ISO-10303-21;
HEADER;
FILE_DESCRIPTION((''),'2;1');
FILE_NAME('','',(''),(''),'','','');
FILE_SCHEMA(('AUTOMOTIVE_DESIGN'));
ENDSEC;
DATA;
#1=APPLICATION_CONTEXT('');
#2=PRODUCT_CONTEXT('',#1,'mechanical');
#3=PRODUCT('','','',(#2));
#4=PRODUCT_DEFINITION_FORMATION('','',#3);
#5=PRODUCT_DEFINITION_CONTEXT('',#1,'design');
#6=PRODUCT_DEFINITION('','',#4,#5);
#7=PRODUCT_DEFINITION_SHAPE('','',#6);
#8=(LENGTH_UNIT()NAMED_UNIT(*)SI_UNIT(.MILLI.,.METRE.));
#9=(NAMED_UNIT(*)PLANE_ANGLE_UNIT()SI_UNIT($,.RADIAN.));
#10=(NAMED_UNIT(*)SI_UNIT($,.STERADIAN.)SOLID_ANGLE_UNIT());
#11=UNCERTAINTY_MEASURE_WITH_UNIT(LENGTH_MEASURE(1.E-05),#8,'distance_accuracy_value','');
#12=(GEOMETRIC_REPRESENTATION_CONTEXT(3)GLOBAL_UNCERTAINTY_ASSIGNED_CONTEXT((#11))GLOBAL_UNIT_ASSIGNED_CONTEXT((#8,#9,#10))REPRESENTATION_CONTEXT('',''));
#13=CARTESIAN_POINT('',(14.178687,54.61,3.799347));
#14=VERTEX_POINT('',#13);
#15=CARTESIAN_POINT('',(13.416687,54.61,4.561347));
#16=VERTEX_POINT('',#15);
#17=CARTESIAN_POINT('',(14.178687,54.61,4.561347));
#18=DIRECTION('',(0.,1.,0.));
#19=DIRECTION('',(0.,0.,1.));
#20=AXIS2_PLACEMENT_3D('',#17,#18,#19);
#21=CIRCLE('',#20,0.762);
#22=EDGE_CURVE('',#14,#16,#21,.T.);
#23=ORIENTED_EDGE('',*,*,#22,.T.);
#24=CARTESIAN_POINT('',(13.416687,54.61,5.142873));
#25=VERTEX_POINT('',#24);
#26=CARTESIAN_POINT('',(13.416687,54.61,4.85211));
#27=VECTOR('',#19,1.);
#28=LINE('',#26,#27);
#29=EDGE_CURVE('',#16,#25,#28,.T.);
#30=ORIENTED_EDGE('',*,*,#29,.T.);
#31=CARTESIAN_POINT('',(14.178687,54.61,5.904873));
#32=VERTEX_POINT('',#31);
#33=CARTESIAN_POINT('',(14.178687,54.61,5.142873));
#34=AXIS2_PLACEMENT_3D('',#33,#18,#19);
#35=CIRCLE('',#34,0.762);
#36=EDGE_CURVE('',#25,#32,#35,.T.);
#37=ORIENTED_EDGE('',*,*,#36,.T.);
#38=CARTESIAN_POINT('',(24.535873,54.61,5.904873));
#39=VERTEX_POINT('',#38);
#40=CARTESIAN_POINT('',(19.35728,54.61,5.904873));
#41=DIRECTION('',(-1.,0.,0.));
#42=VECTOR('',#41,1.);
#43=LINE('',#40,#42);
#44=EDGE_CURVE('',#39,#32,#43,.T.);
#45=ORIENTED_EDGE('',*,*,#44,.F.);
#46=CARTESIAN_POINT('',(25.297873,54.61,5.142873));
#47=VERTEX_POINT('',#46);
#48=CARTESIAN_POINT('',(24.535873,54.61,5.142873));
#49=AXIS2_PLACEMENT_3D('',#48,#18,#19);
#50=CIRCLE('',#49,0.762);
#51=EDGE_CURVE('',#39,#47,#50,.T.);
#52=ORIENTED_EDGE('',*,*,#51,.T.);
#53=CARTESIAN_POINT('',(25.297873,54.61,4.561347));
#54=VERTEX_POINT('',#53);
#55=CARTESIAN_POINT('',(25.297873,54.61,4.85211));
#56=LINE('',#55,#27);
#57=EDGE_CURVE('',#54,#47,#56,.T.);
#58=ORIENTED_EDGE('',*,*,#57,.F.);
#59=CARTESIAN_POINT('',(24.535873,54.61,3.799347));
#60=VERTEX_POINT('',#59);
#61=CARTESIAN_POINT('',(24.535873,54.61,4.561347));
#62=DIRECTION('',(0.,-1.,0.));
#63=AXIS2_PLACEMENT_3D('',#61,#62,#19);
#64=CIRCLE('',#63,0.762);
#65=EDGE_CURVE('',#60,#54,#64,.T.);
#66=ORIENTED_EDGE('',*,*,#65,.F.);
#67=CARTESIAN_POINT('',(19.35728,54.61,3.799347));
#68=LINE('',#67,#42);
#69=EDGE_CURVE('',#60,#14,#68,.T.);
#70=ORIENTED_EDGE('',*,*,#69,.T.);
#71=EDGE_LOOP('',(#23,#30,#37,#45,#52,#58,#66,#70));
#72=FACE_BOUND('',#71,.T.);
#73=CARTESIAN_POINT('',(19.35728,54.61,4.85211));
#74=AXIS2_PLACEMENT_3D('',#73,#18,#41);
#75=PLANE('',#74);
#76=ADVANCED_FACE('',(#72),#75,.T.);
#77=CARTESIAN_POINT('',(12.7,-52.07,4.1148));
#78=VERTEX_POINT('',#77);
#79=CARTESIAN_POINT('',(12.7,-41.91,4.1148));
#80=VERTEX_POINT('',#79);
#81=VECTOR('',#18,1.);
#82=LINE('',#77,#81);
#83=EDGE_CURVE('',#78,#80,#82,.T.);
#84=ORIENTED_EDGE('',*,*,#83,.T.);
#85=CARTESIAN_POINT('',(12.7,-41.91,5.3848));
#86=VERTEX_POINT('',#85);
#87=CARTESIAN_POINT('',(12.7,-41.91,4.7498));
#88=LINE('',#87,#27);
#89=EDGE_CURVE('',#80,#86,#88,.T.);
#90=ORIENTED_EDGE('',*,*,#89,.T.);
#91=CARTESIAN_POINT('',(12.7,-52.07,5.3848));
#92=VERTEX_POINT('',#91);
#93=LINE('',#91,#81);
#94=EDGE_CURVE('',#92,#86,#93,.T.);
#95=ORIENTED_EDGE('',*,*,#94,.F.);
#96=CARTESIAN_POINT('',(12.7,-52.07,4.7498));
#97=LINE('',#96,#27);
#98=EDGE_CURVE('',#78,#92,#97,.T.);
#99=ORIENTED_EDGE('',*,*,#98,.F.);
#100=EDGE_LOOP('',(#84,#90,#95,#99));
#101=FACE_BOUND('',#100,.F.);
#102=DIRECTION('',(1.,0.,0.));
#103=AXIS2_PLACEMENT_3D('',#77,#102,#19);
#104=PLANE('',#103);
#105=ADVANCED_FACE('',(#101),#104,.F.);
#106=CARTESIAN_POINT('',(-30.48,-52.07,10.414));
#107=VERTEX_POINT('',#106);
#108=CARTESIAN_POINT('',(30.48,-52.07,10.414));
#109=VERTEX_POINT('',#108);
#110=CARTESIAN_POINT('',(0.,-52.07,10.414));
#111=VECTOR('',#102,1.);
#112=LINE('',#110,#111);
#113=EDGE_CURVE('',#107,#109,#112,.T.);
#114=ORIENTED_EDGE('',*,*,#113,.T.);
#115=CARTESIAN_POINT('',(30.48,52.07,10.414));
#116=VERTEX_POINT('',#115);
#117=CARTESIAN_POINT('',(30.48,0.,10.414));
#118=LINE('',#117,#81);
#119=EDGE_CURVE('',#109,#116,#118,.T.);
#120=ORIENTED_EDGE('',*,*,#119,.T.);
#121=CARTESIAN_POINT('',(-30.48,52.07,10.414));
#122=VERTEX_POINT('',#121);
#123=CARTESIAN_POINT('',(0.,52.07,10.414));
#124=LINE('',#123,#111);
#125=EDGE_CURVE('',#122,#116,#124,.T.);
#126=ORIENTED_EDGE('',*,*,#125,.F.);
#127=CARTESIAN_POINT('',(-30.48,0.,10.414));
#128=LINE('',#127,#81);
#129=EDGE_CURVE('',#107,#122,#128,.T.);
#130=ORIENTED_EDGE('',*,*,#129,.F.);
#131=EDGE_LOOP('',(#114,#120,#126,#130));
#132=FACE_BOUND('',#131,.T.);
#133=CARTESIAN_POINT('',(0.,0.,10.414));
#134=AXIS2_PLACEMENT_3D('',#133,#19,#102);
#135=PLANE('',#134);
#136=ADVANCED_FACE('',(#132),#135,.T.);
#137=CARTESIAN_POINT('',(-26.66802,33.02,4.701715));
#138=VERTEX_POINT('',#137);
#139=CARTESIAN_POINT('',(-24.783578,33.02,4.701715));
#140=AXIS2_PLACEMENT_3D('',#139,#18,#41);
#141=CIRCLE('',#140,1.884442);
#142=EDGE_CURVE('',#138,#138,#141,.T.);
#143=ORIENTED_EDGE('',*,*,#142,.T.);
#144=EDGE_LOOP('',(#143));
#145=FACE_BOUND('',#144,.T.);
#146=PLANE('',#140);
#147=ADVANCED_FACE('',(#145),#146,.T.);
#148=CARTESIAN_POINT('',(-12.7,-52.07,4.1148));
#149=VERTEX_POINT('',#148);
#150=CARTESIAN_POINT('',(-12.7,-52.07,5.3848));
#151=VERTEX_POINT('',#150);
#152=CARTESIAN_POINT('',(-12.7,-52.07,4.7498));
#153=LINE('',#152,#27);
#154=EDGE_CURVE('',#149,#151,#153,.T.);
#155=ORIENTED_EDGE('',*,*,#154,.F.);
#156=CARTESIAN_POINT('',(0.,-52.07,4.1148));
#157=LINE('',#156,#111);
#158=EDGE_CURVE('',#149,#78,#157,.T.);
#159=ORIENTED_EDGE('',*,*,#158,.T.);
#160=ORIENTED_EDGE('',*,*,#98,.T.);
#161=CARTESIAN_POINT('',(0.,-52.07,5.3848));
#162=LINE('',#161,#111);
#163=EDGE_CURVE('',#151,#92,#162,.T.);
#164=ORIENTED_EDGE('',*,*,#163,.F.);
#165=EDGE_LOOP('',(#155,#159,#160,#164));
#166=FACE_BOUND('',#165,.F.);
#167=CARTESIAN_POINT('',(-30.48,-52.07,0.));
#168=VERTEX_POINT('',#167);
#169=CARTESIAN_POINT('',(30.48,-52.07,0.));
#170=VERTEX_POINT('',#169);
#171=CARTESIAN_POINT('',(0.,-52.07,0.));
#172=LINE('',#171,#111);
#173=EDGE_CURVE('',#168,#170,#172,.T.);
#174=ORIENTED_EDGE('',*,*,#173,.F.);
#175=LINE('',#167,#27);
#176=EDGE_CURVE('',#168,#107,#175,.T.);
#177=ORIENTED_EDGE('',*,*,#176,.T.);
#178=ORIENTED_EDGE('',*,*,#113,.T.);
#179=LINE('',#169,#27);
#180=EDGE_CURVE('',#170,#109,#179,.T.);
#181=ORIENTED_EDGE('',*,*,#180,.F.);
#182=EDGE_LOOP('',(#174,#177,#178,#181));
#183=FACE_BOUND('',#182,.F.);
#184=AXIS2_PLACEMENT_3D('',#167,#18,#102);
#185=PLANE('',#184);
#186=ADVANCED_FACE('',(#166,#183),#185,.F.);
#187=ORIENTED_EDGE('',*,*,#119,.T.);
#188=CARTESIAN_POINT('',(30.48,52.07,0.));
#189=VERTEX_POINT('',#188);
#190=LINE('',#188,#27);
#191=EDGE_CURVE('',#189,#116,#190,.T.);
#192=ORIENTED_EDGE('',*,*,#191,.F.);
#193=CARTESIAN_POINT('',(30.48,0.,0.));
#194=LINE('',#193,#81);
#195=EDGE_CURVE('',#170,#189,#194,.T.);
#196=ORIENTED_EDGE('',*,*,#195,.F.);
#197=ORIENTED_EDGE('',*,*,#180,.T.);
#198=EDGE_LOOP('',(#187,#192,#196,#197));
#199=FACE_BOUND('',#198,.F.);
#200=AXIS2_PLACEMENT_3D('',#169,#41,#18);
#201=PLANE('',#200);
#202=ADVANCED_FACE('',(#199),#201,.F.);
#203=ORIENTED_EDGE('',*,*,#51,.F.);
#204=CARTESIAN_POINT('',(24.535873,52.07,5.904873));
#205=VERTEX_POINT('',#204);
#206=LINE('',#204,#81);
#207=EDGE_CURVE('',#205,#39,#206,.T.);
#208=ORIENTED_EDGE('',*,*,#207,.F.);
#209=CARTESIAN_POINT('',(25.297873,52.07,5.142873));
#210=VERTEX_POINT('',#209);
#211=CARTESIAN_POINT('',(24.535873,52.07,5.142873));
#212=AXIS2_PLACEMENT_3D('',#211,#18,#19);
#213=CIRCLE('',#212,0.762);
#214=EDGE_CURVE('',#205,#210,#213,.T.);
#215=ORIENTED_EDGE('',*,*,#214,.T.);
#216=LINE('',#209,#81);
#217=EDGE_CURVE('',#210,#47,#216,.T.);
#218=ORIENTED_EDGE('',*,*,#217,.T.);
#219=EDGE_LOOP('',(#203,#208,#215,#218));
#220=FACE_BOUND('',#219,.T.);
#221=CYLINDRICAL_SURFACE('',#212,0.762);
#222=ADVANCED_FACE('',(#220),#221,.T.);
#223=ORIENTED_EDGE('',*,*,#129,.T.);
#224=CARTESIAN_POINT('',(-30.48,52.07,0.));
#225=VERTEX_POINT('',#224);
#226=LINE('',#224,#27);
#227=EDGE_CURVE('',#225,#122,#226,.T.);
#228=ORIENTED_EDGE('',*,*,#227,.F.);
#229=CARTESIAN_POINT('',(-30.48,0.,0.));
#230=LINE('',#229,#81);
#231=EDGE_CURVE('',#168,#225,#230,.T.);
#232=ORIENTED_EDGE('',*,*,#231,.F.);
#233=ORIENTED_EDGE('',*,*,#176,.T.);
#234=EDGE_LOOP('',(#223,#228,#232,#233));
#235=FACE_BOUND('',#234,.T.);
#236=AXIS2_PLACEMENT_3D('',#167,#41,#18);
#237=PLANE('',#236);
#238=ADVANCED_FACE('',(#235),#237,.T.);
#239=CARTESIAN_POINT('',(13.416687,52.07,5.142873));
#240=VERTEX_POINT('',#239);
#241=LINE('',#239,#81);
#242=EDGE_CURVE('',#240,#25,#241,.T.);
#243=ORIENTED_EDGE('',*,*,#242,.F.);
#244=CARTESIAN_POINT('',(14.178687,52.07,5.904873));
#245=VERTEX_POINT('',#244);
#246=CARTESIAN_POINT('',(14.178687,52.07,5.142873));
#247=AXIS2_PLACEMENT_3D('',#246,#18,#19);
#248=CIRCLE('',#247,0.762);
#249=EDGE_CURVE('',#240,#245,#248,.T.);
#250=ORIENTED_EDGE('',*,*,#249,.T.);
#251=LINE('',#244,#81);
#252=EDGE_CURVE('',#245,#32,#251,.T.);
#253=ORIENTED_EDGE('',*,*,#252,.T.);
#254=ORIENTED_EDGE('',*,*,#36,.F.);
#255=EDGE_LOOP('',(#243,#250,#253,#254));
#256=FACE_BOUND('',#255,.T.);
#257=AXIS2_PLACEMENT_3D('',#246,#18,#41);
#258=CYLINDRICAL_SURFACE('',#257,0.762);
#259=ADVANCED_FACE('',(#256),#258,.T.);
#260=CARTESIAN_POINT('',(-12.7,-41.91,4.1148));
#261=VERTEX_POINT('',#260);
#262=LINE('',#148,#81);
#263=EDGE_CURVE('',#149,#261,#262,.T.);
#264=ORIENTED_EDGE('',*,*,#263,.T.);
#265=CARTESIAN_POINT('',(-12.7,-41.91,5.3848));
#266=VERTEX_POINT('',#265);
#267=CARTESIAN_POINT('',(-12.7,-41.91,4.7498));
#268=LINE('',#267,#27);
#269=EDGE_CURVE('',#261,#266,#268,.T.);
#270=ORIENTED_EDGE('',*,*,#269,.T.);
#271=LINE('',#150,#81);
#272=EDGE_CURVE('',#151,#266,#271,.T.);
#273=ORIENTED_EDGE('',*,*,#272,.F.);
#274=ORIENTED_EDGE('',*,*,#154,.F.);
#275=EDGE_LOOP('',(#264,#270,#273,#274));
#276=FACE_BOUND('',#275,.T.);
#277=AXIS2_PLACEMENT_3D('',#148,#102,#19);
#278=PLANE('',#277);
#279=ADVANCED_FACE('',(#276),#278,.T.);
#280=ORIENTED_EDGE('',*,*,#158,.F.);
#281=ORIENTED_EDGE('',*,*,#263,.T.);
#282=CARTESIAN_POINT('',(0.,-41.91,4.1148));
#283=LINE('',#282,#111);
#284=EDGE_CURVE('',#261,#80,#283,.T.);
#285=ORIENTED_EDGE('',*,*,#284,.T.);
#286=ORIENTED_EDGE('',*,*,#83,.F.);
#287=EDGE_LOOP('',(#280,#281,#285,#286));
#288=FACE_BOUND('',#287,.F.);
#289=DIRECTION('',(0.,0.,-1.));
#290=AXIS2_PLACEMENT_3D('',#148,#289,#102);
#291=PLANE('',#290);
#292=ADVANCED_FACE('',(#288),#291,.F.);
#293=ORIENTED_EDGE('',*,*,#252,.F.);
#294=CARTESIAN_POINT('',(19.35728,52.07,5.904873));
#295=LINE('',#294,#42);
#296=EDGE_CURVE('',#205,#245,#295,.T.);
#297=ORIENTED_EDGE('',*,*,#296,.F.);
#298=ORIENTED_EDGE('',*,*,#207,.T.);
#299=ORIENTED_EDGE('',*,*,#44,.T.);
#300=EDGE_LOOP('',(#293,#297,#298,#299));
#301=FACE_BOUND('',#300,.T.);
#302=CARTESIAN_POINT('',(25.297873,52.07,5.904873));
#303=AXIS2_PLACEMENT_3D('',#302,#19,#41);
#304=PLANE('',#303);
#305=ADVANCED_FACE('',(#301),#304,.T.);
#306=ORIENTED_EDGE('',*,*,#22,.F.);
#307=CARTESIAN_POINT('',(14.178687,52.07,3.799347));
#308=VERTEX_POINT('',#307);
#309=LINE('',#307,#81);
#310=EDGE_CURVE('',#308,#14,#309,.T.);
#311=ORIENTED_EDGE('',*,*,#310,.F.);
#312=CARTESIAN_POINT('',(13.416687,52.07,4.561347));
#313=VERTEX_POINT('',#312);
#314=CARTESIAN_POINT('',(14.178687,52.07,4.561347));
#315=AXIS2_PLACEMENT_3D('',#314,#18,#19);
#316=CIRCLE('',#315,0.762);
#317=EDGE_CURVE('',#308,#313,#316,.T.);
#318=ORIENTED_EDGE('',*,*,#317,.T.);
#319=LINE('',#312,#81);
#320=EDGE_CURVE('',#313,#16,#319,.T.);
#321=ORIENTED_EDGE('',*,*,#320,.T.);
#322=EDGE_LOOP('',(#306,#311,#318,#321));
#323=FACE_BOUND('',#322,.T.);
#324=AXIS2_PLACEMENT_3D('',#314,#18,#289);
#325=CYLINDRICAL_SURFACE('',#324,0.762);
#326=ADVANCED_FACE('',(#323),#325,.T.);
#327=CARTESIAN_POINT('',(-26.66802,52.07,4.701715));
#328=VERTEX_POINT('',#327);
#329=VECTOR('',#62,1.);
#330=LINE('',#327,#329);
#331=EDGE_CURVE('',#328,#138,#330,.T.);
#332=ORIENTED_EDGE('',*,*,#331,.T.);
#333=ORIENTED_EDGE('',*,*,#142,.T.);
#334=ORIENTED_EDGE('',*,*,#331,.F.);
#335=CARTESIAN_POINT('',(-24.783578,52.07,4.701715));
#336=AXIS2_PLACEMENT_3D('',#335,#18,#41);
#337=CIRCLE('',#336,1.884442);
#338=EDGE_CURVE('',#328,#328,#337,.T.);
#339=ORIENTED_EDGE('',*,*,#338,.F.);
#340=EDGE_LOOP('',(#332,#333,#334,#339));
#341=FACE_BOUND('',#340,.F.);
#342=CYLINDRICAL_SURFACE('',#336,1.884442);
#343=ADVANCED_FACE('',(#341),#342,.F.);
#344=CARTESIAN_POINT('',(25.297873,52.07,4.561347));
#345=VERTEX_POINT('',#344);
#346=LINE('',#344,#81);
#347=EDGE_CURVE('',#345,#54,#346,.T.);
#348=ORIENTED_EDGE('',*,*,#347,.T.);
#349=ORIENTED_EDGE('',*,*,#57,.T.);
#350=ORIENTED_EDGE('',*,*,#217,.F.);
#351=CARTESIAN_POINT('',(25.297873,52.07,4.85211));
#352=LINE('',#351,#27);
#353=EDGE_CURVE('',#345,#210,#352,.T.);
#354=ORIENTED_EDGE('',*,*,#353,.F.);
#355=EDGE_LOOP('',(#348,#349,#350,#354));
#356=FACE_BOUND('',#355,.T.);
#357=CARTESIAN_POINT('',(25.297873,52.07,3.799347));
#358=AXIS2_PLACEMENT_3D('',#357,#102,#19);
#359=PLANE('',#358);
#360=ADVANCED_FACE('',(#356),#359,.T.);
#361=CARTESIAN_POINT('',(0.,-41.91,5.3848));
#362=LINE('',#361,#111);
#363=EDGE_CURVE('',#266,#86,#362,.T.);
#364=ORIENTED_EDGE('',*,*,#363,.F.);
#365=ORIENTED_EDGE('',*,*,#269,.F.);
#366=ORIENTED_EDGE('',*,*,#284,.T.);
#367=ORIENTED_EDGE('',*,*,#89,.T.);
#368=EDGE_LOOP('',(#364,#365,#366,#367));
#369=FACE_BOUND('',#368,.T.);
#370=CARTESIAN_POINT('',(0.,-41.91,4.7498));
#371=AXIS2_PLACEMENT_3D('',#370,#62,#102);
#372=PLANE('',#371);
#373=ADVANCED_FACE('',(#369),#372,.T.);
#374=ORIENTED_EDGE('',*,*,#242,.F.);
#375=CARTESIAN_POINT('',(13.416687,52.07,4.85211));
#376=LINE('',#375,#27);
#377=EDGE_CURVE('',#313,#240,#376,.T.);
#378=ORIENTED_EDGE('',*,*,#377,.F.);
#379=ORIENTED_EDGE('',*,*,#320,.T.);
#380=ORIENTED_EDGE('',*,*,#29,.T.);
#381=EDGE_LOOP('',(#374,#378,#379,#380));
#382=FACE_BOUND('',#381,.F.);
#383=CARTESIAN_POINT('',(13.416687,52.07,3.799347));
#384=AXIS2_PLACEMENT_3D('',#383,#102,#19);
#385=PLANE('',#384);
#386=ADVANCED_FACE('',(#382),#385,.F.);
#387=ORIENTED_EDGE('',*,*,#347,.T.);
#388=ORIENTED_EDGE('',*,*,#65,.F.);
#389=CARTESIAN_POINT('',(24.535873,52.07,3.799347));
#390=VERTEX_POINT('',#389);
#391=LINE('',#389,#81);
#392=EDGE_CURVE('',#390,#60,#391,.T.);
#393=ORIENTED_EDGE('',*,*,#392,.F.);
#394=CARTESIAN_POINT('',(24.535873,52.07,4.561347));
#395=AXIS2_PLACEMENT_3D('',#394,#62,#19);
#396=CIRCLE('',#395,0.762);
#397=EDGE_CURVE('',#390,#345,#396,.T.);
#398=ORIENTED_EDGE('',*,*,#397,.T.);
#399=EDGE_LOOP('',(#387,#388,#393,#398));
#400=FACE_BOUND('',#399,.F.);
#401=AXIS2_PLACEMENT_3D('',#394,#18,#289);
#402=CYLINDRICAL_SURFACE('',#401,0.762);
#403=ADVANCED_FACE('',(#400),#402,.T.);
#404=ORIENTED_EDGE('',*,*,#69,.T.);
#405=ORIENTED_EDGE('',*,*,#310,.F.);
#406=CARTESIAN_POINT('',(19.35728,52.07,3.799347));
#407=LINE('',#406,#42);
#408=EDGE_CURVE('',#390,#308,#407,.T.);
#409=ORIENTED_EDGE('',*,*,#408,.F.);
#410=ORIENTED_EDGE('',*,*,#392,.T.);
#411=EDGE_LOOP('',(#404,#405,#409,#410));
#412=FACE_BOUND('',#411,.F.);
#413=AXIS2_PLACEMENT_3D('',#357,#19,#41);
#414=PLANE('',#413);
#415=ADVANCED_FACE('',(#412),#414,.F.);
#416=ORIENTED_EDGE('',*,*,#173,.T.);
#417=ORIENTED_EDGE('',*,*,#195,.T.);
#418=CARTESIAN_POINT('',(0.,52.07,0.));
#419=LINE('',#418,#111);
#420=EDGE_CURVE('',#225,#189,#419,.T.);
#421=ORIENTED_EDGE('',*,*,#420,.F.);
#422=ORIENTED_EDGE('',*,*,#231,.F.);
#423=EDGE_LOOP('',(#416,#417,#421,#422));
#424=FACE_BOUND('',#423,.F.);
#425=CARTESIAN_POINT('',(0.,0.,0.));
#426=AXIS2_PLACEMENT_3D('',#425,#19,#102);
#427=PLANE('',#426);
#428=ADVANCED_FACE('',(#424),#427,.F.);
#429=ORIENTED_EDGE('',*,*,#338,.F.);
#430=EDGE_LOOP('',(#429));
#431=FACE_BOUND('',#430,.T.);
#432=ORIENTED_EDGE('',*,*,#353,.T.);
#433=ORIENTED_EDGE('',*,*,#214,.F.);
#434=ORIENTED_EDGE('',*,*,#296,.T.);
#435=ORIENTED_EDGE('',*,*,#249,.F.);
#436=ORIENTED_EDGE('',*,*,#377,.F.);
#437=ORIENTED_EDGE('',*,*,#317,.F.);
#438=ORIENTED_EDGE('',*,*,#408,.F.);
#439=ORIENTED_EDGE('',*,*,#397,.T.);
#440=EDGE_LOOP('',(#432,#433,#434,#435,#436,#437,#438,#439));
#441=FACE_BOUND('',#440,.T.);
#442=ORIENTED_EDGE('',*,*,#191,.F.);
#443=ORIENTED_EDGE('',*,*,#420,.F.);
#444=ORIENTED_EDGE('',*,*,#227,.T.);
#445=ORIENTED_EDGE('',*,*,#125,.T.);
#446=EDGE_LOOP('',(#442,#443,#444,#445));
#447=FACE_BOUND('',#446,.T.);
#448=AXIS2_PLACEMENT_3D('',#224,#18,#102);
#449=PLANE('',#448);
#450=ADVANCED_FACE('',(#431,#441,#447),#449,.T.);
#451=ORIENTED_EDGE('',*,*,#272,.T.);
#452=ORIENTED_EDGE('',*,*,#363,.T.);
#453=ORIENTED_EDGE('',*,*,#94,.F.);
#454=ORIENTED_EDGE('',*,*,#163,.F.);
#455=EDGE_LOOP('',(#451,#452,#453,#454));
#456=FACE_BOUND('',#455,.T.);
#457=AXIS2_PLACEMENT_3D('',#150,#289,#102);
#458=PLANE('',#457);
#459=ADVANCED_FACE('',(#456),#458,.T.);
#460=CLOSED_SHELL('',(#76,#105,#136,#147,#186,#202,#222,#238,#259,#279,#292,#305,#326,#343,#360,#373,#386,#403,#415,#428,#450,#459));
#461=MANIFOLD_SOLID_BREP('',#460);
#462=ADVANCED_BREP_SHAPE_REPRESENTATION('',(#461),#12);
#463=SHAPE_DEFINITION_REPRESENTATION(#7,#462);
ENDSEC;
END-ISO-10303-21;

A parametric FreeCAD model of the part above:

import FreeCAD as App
import Part
import Sketcher

V = App.Vector
Q = App.Units.Quantity


def edges_at(feature, points):
    """Names of the edges that pass closest to the given points."""
    edges = feature.Shape.Edges
    near = lambda p: min(range(len(edges)), key=lambda i: edges[i].distToShape(Part.Vertex(*p))[0])
    return sorted({f"Edge{near(p) + 1}" for p in points})


def add_polygon(sketch, points):
    """Adds a closed chain of lines whose ends are joined by coincident constraints."""
    first, n = sketch.GeometryCount, len(points)
    for a, b in zip(points, points[1:] + points[:1]):
        sketch.addGeometry(Part.LineSegment(App.Vector(*a, 0), App.Vector(*b, 0)), False)
    for i in range(n):
        sketch.addConstraint(Sketcher.Constraint("Coincident", first + i, 2, first + (i + 1) % n, 1))

doc = App.newDocument("Part")
body = doc.addObject("PartDesign::Body", "Body")

sketch1 = doc.addObject("Sketcher::SketchObject", "Sketch")
body.addObject(sketch1)
sketch1.AttachmentSupport = (doc.XY_Plane, [""])
sketch1.MapMode = "FlatFace"
add_polygon(sketch1, [(-30, 52), (-30, -52), (30, -52), (30, 52)])
sketch1.addConstraint(Sketcher.Constraint("Vertical", 0))
sketch1.addConstraint(Sketcher.Constraint("Horizontal", 1))
sketch1.addConstraint(Sketcher.Constraint("Vertical", 2))
sketch1.addConstraint(Sketcher.Constraint("Horizontal", 3))
sketch1.addConstraint(Sketcher.Constraint("Symmetric", 0, 2, 2, 2, -1, 1))
sketch1.addConstraint(Sketcher.Constraint("DistanceX", 1, 1, 1, 2, Q("2.4 in")))
sketch1.addConstraint(Sketcher.Constraint("DistanceY", 0, 2, 0, 1, Q("4.1 in")))
pad1 = doc.addObject("PartDesign::Pad", "Pad")
body.addObject(pad1)
pad1.Profile = sketch1
pad1.Length = Q("0.41 in")

sketch2 = doc.addObject("Sketcher::SketchObject", "Sketch001")
body.addObject(sketch2)
sketch2.AttachmentSupport = (doc.XZ_Plane, [""])
sketch2.MapMode = "FlatFace"
sketch2.AttachmentOffset = App.Placement(V(0, 0, 2.05 * 25.4), App.Rotation())
add_polygon(sketch2, [(-12.7, 5.4), (-12.7, 4.1), (12.7, 4.1), (12.7, 5.4)])
sketch2.addConstraint(Sketcher.Constraint("Vertical", 0))
sketch2.addConstraint(Sketcher.Constraint("Horizontal", 1))
sketch2.addConstraint(Sketcher.Constraint("Vertical", 2))
sketch2.addConstraint(Sketcher.Constraint("Horizontal", 3))
sketch2.addConstraint(Sketcher.Constraint("DistanceX", 1, 1, 1, 2, Q("1 in")))
sketch2.addConstraint(Sketcher.Constraint("DistanceY", 0, 2, 0, 1, Q("0.05 in")))
sketch2.addConstraint(Sketcher.Constraint("DistanceX", 0, 2, -1, 1, Q("0.5 in")))
sketch2.addConstraint(Sketcher.Constraint("DistanceY", -1, 1, 0, 2, Q("0.162 in")))
pocket1 = doc.addObject("PartDesign::Pocket", "Pocket")
body.addObject(pocket1)
pocket1.Profile = sketch2
pocket1.Length = Q("0.4 in")

sketch3 = doc.addObject("Sketcher::SketchObject", "Sketch002")
body.addObject(sketch3)
sketch3.AttachmentSupport = (doc.XZ_Plane, [""])
sketch3.MapMode = "FlatFace"
sketch3.AttachmentOffset = App.Placement(V(0, 0, -2.05 * 25.4), App.Rotation())
sketch3.addGeometry(Part.Circle(V(-24.8, 4.7, 0), V(0, 0, 1), 1.9), False)
sketch3.addConstraint(Sketcher.Constraint("Diameter", 0, Q("3.768884 mm")))
sketch3.addConstraint(Sketcher.Constraint("DistanceX", 0, 3, -1, 1, Q("24.783578 mm")))
sketch3.addConstraint(Sketcher.Constraint("DistanceY", -1, 1, 0, 3, Q("4.701715 mm")))
pocket2 = doc.addObject("PartDesign::Pocket", "Pocket001")
body.addObject(pocket2)
pocket2.Profile = sketch3
pocket2.Length = Q("0.75 in")
pocket2.Reversed = True

sketch4 = doc.addObject("Sketcher::SketchObject", "Sketch003")
body.addObject(sketch4)
sketch4.AttachmentSupport = (doc.XZ_Plane, [""])
sketch4.MapMode = "FlatFace"
sketch4.AttachmentOffset = App.Placement(V(0, 0, -2.05 * 25.4), App.Rotation())
add_polygon(sketch4, [(25.3, 5.9), (25.3, 3.8), (13.4, 3.8), (13.4, 5.9)])
sketch4.addConstraint(Sketcher.Constraint("Vertical", 0))
sketch4.addConstraint(Sketcher.Constraint("Horizontal", 1))
sketch4.addConstraint(Sketcher.Constraint("Vertical", 2))
sketch4.addConstraint(Sketcher.Constraint("Horizontal", 3))
sketch4.addConstraint(Sketcher.Constraint("DistanceX", 1, 2, 1, 1, Q("11.881186 mm")))
sketch4.addConstraint(Sketcher.Constraint("DistanceY", 0, 2, 0, 1, Q("2.105526 mm")))
sketch4.addConstraint(Sketcher.Constraint("DistanceX", -1, 1, 0, 2, Q("25.297873 mm")))
sketch4.addConstraint(Sketcher.Constraint("DistanceY", -1, 1, 0, 2, Q("3.799347 mm")))
pad2 = doc.addObject("PartDesign::Pad", "Pad001")
body.addObject(pad2)
pad2.Profile = sketch4
pad2.Length = Q("0.1 in")
pad2.Reversed = True
doc.recompute()

fillet = doc.addObject("PartDesign::Fillet", "Fillet")
body.addObject(fillet)
fillet.Base = (pad2, edges_at(pad2, [
    (13.417, 53.34, 3.799),
    (25.298, 53.34, 3.799),
    (25.298, 53.34, 5.905),
    (13.417, 53.34, 5.905),
]))
fillet.Radius = Q("0.03 in")

doc.recompute()
